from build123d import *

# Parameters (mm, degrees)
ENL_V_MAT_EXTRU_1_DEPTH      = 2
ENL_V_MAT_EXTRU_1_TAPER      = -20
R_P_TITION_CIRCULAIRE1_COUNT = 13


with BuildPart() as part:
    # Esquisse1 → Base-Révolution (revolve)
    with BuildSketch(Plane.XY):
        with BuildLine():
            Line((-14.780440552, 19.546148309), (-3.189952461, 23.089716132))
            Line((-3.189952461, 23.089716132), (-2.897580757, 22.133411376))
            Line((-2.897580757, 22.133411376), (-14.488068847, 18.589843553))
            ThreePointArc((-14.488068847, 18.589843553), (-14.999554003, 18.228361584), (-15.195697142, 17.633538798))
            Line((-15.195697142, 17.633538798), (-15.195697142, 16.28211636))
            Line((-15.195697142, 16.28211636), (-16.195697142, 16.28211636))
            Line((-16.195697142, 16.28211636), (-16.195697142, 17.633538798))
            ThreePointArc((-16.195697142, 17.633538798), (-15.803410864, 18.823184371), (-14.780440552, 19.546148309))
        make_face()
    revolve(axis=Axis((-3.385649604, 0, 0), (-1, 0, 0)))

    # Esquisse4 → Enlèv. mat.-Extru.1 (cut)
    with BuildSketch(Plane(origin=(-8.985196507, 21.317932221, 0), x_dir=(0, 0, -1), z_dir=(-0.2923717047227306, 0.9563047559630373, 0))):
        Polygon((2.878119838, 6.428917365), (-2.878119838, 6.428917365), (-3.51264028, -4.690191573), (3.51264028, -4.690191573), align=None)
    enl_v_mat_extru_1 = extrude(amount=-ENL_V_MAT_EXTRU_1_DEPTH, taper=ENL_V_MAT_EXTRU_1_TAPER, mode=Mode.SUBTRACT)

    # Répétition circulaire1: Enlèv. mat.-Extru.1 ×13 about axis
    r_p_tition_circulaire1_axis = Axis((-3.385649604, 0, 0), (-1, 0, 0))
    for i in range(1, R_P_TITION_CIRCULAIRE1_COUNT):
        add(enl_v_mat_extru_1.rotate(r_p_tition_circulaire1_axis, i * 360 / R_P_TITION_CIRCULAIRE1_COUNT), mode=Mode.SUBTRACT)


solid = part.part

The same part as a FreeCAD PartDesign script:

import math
import FreeCAD as App
import Part
import Sketcher

V = App.Vector
Q = App.Units.Quantity

doc = App.newDocument("Part")
body = doc.addObject("PartDesign::Body", "Body")

# Sketch on XY plane
sketch1 = body.newObject("Sketcher::SketchObject", "Sketch")
sketch1.AttachmentSupport = (doc.getObject("XY_Plane"), [""])
sketch1.MapMode = "FlatFace"
sketch1.addGeometry([
    Part.LineSegment(V(-3.2, 23.1, 0), V(-14.8, 19.5, 0)),  # 0
    Part.ArcOfCircle(Part.Circle(V(-14.2, 17.6, 0), V(0, 0, 1), 2), math.radians(107), math.radians(180)),  # 1
    Part.LineSegment(V(-16.2, 17.6, 0), V(-16.2, 16.3, 0)),  # 2
    Part.LineSegment(V(-16.2, 16.3, 0), V(-15.2, 16.3, 0)),  # 3
    Part.LineSegment(V(-15.2, 16.3, 0), V(-15.2, 17.6, 0)),  # 4
    Part.ArcOfCircle(Part.Circle(V(-14.2, 17.6, 0), V(0, 0, 1), 1), math.radians(107), math.radians(180)),  # 5
    Part.LineSegment(V(-14.5, 18.6, 0), V(-2.9, 22.1, 0)),  # 6
    Part.LineSegment(V(-2.9, 22.1, 0), V(-3.2, 23.1, 0)),  # 7
], False)
sketch1.addConstraint([
    Sketcher.Constraint("Tangent", 0, 2, 1, 1),
    Sketcher.Constraint("Tangent", 1, 2, 2, 1),
    Sketcher.Constraint("Coincident", 2, 2, 3, 1),
    Sketcher.Constraint("Coincident", 3, 2, 4, 1),
    Sketcher.Constraint("Tangent", 4, 2, 5, 2),
    Sketcher.Constraint("Tangent", 5, 1, 6, 1),
    Sketcher.Constraint("Coincident", 6, 2, 7, 1),
    Sketcher.Constraint("Coincident", 7, 2, 0, 1),
    Sketcher.Constraint("Vertical", 2),
    Sketcher.Constraint("Horizontal", 3),
    Sketcher.Constraint("Vertical", 4),
    Sketcher.Constraint("Coincident", 5, 3, 1, 3),
    Sketcher.Constraint("Parallel", 0, 6),
    Sketcher.Constraint("Perpendicular", 6, 7),
    Sketcher.Constraint("Radius", 1, 2.0),
    Sketcher.Constraint("Radius", 5, 1.0),
    Sketcher.Constraint("Angle", 0, Q("-163 deg")),
    Sketcher.Constraint("DistanceY", 2, 2, 2, 1, 1.351422),
    Sketcher.Constraint("DistanceY", -1, 1, 1, 3, 17.633539),
    Sketcher.Constraint("DistanceX", 0, 2, -1, 1, 14.780441),
    Sketcher.Constraint("DistanceX", 6, 2, -1, 1, 2.897581),
])
revolution = body.newObject("PartDesign::Revolution", "Revolution")
revolution.Profile = sketch1
revolution.ReferenceAxis = (sketch1, ["H_Axis"])
revolution.Angle = 360

# Sketch on an angled plane
sketch2 = body.newObject("Sketcher::SketchObject", "Sketch001")
sketch2.Placement = App.Placement(V(-8.985197, 21.317932, 0), App.Rotation(V(0, 0, -1), V(-0.956304756, -0.292371705, 0), V(-0.292371705, 0.956304756, 0), "ZXY"))
sketch2.addGeometry([
    Part.LineSegment(V(3, 6, 0), V(-3, 6, 0)),
    Part.LineSegment(V(-3, 6, 0), V(-4, -5, 0)),
    Part.LineSegment(V(-4, -5, 0), V(4, -5, 0)),
    Part.LineSegment(V(4, -5, 0), V(3, 6, 0)),
], False)
sketch2.addConstraint([
    Sketcher.Constraint("Coincident", 0, 2, 1, 1),
    Sketcher.Constraint("Coincident", 1, 2, 2, 1),
    Sketcher.Constraint("Coincident", 2, 2, 3, 1),
    Sketcher.Constraint("Coincident", 3, 2, 0, 1),
    Sketcher.Constraint("Horizontal", 0),
    Sketcher.Constraint("Horizontal", 2),
    Sketcher.Constraint("Equal", 1, 3),
    Sketcher.Constraint("Distance", 1, 11.137199),
    Sketcher.Constraint("DistanceX", 0, 2, 0, 1, 5.75624),
    Sketcher.Constraint("DistanceX", 2, 1, 2, 2, 7.025281),
    Sketcher.Constraint("DistanceX", 0, 2, -1, 1, 2.87812),
    Sketcher.Constraint("DistanceY", 1, 2, -1, 1, 4.690192),
])
pocket1 = body.newObject("PartDesign::Pocket", "Pocket")
pocket1.Profile = sketch2
pocket1.Length = 2
pocket1.TaperAngle = 20
doc.recompute()

polarpattern = body.newObject("PartDesign::PolarPattern", "PolarPattern")
polarpattern.Originals = [pocket1]
polarpattern.Axis = (doc.getObject("X_Axis"), [""])
polarpattern.Angle = 360
polarpattern.Occurrences = 13
body.Tip = polarpattern

doc.recompute()
